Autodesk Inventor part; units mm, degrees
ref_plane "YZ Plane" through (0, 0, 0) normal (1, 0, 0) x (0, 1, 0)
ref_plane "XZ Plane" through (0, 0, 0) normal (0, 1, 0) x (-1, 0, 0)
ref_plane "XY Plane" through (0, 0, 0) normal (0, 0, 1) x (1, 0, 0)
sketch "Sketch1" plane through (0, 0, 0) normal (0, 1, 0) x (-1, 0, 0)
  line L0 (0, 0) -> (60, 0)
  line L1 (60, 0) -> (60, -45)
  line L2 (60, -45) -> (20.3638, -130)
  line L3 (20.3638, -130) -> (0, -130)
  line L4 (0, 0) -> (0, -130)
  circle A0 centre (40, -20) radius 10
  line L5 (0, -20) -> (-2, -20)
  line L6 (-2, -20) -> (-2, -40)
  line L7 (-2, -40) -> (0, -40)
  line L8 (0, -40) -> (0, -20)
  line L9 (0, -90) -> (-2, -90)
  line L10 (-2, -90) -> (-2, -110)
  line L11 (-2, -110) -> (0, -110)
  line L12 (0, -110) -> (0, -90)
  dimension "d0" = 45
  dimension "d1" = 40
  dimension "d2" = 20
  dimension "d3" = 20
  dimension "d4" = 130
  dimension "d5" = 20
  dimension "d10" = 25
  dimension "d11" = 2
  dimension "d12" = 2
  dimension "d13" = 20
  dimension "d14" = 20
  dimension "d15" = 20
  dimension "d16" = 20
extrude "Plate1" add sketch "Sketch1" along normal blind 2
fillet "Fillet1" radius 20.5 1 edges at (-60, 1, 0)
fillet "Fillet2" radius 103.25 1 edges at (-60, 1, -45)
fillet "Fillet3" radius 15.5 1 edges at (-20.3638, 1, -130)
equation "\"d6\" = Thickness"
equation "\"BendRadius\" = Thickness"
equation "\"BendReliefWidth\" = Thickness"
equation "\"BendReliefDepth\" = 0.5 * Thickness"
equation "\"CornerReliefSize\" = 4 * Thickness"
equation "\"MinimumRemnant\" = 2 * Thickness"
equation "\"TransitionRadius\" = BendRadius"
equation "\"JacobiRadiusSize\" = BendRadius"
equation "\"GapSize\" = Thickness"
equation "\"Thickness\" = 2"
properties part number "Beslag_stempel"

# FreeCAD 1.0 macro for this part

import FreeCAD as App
import Part
import Sketcher
from FreeCAD import Vector
Q = App.Units.Quantity


def edges_at(feature, points):
    """Names of the edges that pass closest to the given points."""
    edges = feature.Shape.Edges
    near = lambda p: min(range(len(edges)), key=lambda i: edges[i].distToShape(Part.Vertex(*p))[0])
    return sorted({f"Edge{near(p) + 1}" for p in points})

doc = App.newDocument("Part")
body = doc.addObject("PartDesign::Body", "Body")

# Sketch on XZ plane
sketch1 = body.newObject("Sketcher::SketchObject", "Sketch")
sketch1.AttachmentSupport = (doc.getObject("XZ_Plane"), [""])
sketch1.MapMode = "FlatFace"
sketch1.addGeometry(Part.LineSegment(Vector(-60, 0, 0), Vector(0, 0, 0)), False)
sketch1.addGeometry(Part.LineSegment(Vector(0, 0, 0), Vector(0, -20, 0)), False)
sketch1.addGeometry(Part.LineSegment(Vector(0, -20, 0), Vector(2, -20, 0)), False)
sketch1.addGeometry(Part.LineSegment(Vector(2, -20, 0), Vector(2, -40, 0)), False)
sketch1.addGeometry(Part.LineSegment(Vector(2, -40, 0), Vector(0, -40, 0)), False)
sketch1.addGeometry(Part.LineSegment(Vector(0, -40, 0), Vector(0, -90, 0)), False)
sketch1.addGeometry(Part.LineSegment(Vector(0, -90, 0), Vector(2, -90, 0)), False)
sketch1.addGeometry(Part.LineSegment(Vector(2, -90, 0), Vector(2, -110, 0)), False)
sketch1.addGeometry(Part.LineSegment(Vector(2, -110, 0), Vector(0, -110, 0)), False)
sketch1.addGeometry(Part.LineSegment(Vector(0, -110, 0), Vector(0, -130, 0)), False)
sketch1.addGeometry(Part.LineSegment(Vector(0, -130, 0), Vector(-20.4, -130, 0)), False)
sketch1.addGeometry(Part.LineSegment(Vector(-20.4, -130, 0), Vector(-60, -45, 0)), False)
sketch1.addGeometry(Part.LineSegment(Vector(-60, -45, 0), Vector(-60, 0, 0)), False)
sketch1.addGeometry(Part.Circle(Vector(-40, -20, 0), Vector(0, 0, 1), 10), False)
sketch1.addConstraint(Sketcher.Constraint("Coincident", 0, 2, 1, 1))
sketch1.addConstraint(Sketcher.Constraint("Coincident", 1, 2, 2, 1))
sketch1.addConstraint(Sketcher.Constraint("Coincident", 2, 2, 3, 1))
sketch1.addConstraint(Sketcher.Constraint("Coincident", 3, 2, 4, 1))
sketch1.addConstraint(Sketcher.Constraint("Coincident", 4, 2, 5, 1))
sketch1.addConstraint(Sketcher.Constraint("Coincident", 5, 2, 6, 1))
sketch1.addConstraint(Sketcher.Constraint("Coincident", 6, 2, 7, 1))
sketch1.addConstraint(Sketcher.Constraint("Coincident", 7, 2, 8, 1))
sketch1.addConstraint(Sketcher.Constraint("Coincident", 8, 2, 9, 1))
sketch1.addConstraint(Sketcher.Constraint("Coincident", 9, 2, 10, 1))
sketch1.addConstraint(Sketcher.Constraint("Coincident", 10, 2, 11, 1))
sketch1.addConstraint(Sketcher.Constraint("Coincident", 11, 2, 12, 1))
sketch1.addConstraint(Sketcher.Constraint("Coincident", 12, 2, 0, 1))
sketch1.addConstraint(Sketcher.Constraint("Horizontal", 0))
sketch1.addConstraint(Sketcher.Constraint("Vertical", 1))
sketch1.addConstraint(Sketcher.Constraint("Horizontal", 2))
sketch1.addConstraint(Sketcher.Constraint("Vertical", 3))
sketch1.addConstraint(Sketcher.Constraint("Horizontal", 4))
sketch1.addConstraint(Sketcher.Constraint("Vertical", 5))
sketch1.addConstraint(Sketcher.Constraint("Horizontal", 6))
sketch1.addConstraint(Sketcher.Constraint("Vertical", 7))
sketch1.addConstraint(Sketcher.Constraint("Horizontal", 8))
sketch1.addConstraint(Sketcher.Constraint("Vertical", 9))
sketch1.addConstraint(Sketcher.Constraint("Horizontal", 10))
sketch1.addConstraint(Sketcher.Constraint("Vertical", 12))
sketch1.addConstraint(Sketcher.Constraint("Coincident", 0, 2, -1, 1))
sketch1.addConstraint(Sketcher.Constraint("PointOnObject", 4, 2, -2))
sketch1.addConstraint(Sketcher.Constraint("PointOnObject", 8, 2, -2))
sketch1.addConstraint(Sketcher.Constraint("Horizontal", 13, 3, 1, 2))
sketch1.addConstraint(Sketcher.Constraint("Vertical", 3, 2, 6, 2))
sketch1.addConstraint(Sketcher.Constraint("Equal", 1, 3))
sketch1.addConstraint(Sketcher.Constraint("Equal", 3, 7))
sketch1.addConstraint(Sketcher.Constraint("Equal", 7, 9))
sketch1.addConstraint(Sketcher.Constraint("Diameter", 13, Q("20 mm")))
sketch1.addConstraint(Sketcher.Constraint("DistanceX", 2, 1, 2, 2, Q("2 mm")))
sketch1.addConstraint(Sketcher.Constraint("DistanceY", 1, 2, 1, 1, Q("20 mm")))
sketch1.addConstraint(Sketcher.Constraint("DistanceY", 12, 1, 12, 2, Q("45 mm")))
sketch1.addConstraint(Sketcher.Constraint("DistanceX", 13, 3, -1, 1, Q("40 mm")))
sketch1.addConstraint(Sketcher.Constraint("DistanceY", 9, 2, -1, 1, Q("130 mm")))
sketch1.addConstraint(Sketcher.Constraint("DistanceX", 11, 2, 13, 3, Q("20 mm")))
sketch1.addConstraint(Sketcher.Constraint("Angle", 11, Q("115 deg")))
pad1 = body.newObject("PartDesign::Pad", "Pad")
pad1.Profile = sketch1
pad1.Length = 2
pad1.Reversed = True
doc.recompute()

fillet = body.newObject("PartDesign::Fillet", "Fillet")
fillet.Base = (pad1, edges_at(pad1, [(-60, 1, 0)]))
fillet.Radius = 20.5
doc.recompute()

fillet2 = body.newObject("PartDesign::Fillet", "Fillet001")
fillet2.Base = (fillet, edges_at(fillet, [(-60, 1, -45)]))
fillet2.Radius = 103.25
doc.recompute()

fillet3 = body.newObject("PartDesign::Fillet", "Fillet002")
fillet3.Base = (fillet2, edges_at(fillet2, [(-20.364, 1, -130)]))
fillet3.Radius = 15.5

doc.recompute()
